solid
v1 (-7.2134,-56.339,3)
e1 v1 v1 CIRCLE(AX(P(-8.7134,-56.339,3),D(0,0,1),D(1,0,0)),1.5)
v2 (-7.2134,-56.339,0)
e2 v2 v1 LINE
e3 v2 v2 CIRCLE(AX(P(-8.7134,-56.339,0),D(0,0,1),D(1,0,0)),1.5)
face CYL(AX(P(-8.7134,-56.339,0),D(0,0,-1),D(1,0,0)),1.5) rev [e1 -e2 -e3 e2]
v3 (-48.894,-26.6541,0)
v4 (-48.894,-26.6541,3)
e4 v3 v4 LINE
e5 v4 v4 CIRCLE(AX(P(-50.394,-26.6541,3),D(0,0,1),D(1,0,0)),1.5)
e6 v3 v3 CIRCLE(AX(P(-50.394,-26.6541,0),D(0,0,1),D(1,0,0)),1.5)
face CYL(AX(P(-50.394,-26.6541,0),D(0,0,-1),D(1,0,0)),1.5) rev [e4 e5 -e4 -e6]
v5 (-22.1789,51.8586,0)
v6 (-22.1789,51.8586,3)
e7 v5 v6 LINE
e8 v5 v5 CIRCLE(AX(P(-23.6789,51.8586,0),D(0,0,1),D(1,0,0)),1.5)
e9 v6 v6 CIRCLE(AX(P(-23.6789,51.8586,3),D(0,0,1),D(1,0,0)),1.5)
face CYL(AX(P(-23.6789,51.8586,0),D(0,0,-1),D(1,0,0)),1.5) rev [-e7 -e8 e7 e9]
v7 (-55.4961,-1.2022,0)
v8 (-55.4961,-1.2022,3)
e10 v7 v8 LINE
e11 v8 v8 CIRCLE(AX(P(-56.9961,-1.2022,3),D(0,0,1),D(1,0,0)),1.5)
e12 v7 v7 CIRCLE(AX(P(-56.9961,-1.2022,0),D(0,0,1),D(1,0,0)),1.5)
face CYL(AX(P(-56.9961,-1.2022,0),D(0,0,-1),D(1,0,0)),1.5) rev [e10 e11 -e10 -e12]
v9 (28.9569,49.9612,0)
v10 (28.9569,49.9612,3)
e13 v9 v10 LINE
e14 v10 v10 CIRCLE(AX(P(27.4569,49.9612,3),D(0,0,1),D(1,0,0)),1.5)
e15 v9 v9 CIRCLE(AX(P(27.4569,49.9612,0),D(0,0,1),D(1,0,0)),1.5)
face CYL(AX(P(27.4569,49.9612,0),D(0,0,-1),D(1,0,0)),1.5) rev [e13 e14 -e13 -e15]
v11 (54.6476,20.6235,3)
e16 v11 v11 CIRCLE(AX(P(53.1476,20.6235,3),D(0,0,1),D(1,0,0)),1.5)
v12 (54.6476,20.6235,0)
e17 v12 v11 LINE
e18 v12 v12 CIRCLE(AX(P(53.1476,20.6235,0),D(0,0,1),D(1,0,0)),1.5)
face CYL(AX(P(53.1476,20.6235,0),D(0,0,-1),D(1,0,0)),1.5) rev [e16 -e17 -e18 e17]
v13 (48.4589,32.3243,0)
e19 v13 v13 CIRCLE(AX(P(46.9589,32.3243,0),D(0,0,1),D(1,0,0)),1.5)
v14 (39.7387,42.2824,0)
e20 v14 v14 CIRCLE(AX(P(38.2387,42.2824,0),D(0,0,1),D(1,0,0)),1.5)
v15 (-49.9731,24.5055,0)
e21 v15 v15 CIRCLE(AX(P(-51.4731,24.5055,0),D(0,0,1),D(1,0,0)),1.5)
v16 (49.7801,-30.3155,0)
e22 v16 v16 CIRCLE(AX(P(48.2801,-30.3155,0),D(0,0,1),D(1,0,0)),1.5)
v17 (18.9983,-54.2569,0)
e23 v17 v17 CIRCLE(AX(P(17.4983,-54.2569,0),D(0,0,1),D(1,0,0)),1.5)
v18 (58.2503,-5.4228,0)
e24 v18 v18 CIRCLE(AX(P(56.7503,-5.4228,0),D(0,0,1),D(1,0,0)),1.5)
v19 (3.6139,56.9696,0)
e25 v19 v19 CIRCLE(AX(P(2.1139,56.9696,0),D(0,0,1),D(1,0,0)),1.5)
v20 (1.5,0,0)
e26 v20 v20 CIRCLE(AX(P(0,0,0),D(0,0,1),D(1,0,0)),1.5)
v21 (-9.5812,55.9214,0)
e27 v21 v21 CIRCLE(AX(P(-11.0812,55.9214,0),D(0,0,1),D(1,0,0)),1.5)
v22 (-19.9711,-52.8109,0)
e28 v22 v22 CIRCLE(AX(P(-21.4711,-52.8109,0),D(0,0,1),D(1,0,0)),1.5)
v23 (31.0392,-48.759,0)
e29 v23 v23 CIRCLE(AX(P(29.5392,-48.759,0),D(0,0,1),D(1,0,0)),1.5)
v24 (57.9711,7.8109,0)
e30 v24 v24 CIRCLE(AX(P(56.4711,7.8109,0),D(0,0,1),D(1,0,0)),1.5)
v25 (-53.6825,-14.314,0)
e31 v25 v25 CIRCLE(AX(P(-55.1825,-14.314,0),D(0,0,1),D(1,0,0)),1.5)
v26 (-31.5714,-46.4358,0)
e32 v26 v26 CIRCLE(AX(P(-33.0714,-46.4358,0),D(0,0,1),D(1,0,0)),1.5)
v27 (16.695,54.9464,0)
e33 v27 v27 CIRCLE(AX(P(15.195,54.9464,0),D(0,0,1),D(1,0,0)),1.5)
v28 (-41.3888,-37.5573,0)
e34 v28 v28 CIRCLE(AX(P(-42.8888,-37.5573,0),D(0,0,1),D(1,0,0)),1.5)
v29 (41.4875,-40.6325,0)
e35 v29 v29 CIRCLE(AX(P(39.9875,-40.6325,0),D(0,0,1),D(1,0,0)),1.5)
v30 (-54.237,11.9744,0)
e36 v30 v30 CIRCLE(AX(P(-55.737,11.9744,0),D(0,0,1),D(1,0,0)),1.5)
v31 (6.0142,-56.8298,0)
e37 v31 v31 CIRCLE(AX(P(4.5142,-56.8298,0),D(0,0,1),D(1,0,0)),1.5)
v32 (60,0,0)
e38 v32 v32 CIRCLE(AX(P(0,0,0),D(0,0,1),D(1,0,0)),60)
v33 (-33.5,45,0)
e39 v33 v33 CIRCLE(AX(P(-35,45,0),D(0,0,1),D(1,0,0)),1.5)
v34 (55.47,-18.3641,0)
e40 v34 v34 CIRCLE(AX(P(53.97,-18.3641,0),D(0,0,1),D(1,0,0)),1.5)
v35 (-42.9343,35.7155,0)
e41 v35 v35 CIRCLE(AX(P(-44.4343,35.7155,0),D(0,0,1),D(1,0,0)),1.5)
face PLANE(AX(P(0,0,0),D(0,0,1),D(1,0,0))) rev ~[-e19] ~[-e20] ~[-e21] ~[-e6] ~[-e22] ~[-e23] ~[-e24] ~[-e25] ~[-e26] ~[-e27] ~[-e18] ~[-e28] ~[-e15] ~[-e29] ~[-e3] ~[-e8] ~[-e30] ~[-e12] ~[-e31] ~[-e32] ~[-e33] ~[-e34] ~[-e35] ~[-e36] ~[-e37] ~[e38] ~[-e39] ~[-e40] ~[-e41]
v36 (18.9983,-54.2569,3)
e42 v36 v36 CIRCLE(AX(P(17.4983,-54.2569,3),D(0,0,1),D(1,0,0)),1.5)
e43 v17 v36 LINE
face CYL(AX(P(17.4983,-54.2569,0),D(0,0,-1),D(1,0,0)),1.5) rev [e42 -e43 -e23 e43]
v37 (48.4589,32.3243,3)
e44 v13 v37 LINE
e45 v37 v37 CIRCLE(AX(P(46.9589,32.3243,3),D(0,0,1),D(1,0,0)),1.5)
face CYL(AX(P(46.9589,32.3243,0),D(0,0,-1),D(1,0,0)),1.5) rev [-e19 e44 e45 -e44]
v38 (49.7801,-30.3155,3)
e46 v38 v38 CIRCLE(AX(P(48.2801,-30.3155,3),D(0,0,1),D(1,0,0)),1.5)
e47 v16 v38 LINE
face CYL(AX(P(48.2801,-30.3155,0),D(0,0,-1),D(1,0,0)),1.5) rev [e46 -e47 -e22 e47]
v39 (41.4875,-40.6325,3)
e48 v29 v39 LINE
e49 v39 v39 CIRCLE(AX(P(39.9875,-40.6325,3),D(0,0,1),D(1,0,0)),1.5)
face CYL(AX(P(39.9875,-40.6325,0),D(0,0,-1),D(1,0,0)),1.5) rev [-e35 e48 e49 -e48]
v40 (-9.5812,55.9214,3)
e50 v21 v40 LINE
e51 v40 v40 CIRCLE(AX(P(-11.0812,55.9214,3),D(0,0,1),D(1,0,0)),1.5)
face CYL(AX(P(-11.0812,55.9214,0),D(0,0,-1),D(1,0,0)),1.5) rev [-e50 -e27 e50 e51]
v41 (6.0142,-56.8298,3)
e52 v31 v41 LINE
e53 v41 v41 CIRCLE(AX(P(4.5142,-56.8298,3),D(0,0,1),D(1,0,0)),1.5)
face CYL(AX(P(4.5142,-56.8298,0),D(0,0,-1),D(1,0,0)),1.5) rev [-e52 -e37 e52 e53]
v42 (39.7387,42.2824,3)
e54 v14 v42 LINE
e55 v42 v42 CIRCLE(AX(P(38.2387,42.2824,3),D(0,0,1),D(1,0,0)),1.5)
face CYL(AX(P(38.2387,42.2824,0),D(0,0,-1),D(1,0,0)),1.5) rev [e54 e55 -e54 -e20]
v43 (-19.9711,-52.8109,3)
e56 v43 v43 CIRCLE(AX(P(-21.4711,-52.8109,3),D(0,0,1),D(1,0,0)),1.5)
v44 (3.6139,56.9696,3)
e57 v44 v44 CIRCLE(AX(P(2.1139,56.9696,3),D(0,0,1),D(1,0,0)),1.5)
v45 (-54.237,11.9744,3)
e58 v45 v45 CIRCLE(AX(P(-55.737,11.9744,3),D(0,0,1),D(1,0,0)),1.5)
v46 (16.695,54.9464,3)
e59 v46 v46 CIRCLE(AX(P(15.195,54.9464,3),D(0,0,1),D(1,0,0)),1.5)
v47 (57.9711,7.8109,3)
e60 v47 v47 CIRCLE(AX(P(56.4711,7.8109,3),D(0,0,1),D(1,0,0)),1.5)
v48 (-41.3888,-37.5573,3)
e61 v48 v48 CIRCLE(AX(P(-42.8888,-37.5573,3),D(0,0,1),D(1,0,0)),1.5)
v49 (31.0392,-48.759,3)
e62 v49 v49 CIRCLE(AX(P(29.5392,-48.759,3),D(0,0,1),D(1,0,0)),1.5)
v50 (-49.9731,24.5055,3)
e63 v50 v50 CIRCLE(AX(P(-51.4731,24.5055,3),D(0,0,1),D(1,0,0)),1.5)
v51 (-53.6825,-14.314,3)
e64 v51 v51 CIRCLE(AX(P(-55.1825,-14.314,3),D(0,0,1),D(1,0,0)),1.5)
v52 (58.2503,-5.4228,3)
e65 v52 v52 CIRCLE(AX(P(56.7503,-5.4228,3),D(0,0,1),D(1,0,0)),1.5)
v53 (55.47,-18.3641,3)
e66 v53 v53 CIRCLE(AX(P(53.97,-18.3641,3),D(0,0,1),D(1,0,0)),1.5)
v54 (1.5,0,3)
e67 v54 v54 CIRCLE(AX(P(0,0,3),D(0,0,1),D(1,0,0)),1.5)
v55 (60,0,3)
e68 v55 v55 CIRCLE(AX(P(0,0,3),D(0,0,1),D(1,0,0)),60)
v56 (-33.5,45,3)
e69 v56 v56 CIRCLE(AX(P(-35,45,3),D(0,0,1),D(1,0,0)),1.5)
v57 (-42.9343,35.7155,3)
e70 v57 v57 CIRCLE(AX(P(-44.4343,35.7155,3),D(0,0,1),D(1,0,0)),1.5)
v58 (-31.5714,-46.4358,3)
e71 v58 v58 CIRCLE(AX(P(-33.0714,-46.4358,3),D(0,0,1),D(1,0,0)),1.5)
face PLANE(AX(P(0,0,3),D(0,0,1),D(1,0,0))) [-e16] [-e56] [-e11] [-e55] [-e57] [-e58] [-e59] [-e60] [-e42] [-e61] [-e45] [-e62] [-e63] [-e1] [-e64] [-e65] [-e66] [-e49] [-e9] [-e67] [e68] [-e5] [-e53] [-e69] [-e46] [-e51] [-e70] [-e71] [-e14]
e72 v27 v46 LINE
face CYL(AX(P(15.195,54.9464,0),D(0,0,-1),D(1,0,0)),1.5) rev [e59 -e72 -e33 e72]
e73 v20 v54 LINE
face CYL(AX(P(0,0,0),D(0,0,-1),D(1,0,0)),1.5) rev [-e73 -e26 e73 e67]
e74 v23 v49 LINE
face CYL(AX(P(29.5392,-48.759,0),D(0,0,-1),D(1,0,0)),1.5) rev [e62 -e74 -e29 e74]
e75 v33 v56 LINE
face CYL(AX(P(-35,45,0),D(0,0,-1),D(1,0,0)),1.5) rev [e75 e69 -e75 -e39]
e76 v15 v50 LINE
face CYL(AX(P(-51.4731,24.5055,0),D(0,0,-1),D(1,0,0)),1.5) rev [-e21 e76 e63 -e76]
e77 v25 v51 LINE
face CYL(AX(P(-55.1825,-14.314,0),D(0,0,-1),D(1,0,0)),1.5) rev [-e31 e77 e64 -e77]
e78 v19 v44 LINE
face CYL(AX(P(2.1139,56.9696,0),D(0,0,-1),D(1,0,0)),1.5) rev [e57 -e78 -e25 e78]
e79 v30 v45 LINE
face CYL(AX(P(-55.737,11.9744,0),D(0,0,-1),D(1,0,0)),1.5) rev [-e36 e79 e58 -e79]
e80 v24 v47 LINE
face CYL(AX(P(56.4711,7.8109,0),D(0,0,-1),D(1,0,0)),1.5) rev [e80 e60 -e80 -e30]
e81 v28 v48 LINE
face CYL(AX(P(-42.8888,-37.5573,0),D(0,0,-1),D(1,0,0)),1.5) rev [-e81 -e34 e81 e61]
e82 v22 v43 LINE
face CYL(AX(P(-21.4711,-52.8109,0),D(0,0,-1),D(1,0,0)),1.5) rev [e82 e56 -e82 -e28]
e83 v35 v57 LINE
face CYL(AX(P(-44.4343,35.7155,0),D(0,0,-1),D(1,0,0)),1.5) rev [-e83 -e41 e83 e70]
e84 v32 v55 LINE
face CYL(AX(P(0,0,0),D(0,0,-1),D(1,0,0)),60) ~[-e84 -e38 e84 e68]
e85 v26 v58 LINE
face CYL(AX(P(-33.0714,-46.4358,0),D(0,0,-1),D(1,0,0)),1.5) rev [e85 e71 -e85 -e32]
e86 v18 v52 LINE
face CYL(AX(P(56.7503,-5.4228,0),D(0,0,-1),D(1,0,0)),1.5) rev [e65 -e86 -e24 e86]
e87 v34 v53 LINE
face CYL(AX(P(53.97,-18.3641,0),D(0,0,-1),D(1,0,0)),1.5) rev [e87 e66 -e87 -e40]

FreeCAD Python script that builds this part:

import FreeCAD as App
import Part
import Sketcher
from FreeCAD import Vector
Q = App.Units.Quantity

doc = App.newDocument("Part")
body = doc.addObject("PartDesign::Body", "Body")

# Sketch on XY plane
sketch1 = body.newObject("Sketcher::SketchObject", "Sketch")
sketch1.AttachmentSupport = (doc.getObject("XY_Plane"), [""])
sketch1.MapMode = "FlatFace"
sketch1.addGeometry([
    Part.Circle(Vector(0, 0, 0), Vector(0, 0, 1), 60),  # 0
    Part.Circle(Vector(-33.1, -46.4, 0), Vector(0, 0, 1), 1.5),  # 1
    Part.Circle(Vector(-42.9, -37.6, 0), Vector(0, 0, 1), 1.5),  # 2
    Part.Circle(Vector(-21.5, -52.8, 0), Vector(0, 0, 1), 1.5),  # 3
    Part.Circle(Vector(-8.7, -56.3, 0), Vector(0, 0, 1), 1.5),  # 4
    Part.Circle(Vector(-50.4, -26.7, 0), Vector(0, 0, 1), 1.5),  # 5
    Part.Circle(Vector(-55.2, -14.3, 0), Vector(0, 0, 1), 1.5),  # 6
    Part.Circle(Vector(-57, -1.2, 0), Vector(0, 0, 1), 1.5),  # 7
    Part.Circle(Vector(4.5, -56.8, 0), Vector(0, 0, 1), 1.5),  # 8
    Part.Circle(Vector(17.5, -54.3, 0), Vector(0, 0, 1), 1.5),  # 9
    Part.Circle(Vector(29.5, -48.8, 0), Vector(0, 0, 1), 1.5),  # 10
    Part.Circle(Vector(40, -40.6, 0), Vector(0, 0, 1), 1.5),  # 11
    Part.Circle(Vector(48.3, -30.3, 0), Vector(0, 0, 1), 1.5),  # 12
    Part.Circle(Vector(54, -18.4, 0), Vector(0, 0, 1), 1.5),  # 13
    Part.Circle(Vector(56.8, -5.4, 0), Vector(0, 0, 1), 1.5),  # 14
    Part.Circle(Vector(-55.7, 12, 0), Vector(0, 0, 1), 1.5),  # 15
    Part.Circle(Vector(-51.5, 24.5, 0), Vector(0, 0, 1), 1.5),  # 16
    Part.Circle(Vector(-44.4, 35.7, 0), Vector(0, 0, 1), 1.5),  # 17
    Part.Circle(Vector(-35, 45, 0), Vector(0, 0, 1), 1.5),  # 18
    Part.Circle(Vector(-23.7, 51.9, 0), Vector(0, 0, 1), 1.5),  # 19
    Part.Circle(Vector(-11.1, 55.9, 0), Vector(0, 0, 1), 1.5),  # 20
    Part.Circle(Vector(0, 0, 0), Vector(0, 0, 1), 1.5),  # 21
    Part.Circle(Vector(56.5, 7.8, 0), Vector(0, 0, 1), 1.5),  # 22
    Part.Circle(Vector(53.1, 20.6, 0), Vector(0, 0, 1), 1.5),  # 23
    Part.Circle(Vector(2.1, 57, 0), Vector(0, 0, 1), 1.5),  # 24
    Part.Circle(Vector(27.5, 50, 0), Vector(0, 0, 1), 1.5),  # 25
    Part.Circle(Vector(15.2, 54.9, 0), Vector(0, 0, 1), 1.5),  # 26
    Part.Circle(Vector(38.2, 42.3, 0), Vector(0, 0, 1), 1.5),  # 27
    Part.Circle(Vector(47, 32.3, 0), Vector(0, 0, 1), 1.5),  # 28
], False)
sketch1.addConstraint([
    Sketcher.Constraint("Coincident", 0, 3, -1, 1),
    Sketcher.Constraint("Coincident", 21, 3, -1, 1),
    Sketcher.Constraint("Equal", 1, 2),
    Sketcher.Constraint("Equal", 2, 3),
    Sketcher.Constraint("Equal", 3, 4),
    Sketcher.Constraint("Equal", 4, 5),
    Sketcher.Constraint("Equal", 5, 6),
    Sketcher.Constraint("Equal", 6, 7),
    Sketcher.Constraint("Equal", 7, 8),
    Sketcher.Constraint("Equal", 8, 9),
    Sketcher.Constraint("Equal", 9, 10),
    Sketcher.Constraint("Equal", 10, 11),
    Sketcher.Constraint("Equal", 11, 12),
    Sketcher.Constraint("Equal", 12, 13),
    Sketcher.Constraint("Equal", 13, 14),
    Sketcher.Constraint("Equal", 14, 15),
    Sketcher.Constraint("Equal", 15, 16),
    Sketcher.Constraint("Equal", 16, 17),
    Sketcher.Constraint("Equal", 17, 18),
    Sketcher.Constraint("Equal", 18, 19),
    Sketcher.Constraint("Equal", 19, 20),
    Sketcher.Constraint("Equal", 20, 21),
    Sketcher.Constraint("Equal", 21, 22),
    Sketcher.Constraint("Equal", 22, 23),
    Sketcher.Constraint("Equal", 23, 24),
    Sketcher.Constraint("Equal", 24, 25),
    Sketcher.Constraint("Equal", 25, 26),
    Sketcher.Constraint("Equal", 26, 27),
    Sketcher.Constraint("Equal", 27, 28),
    Sketcher.Constraint("Diameter", 0, Q("120 mm")),
    Sketcher.Constraint("Diameter", 1, Q("3 mm")),
    Sketcher.Constraint("DistanceX", 18, 3, -1, 1, Q("35 mm")),
    Sketcher.Constraint("DistanceY", -1, 1, 18, 3, Q("45 mm")),
    Sketcher.Constraint("DistanceX", -1, 1, 12, 3, Q("48.28 mm")),
    Sketcher.Constraint("DistanceX", -1, 1, 13, 3, Q("53.97 mm")),
    Sketcher.Constraint("DistanceY", 5, 3, 6, 3, Q("12.34 mm")),
    Sketcher.Constraint("DistanceY", 4, 3, 10, 3, Q("7.58 mm")),
    Sketcher.Constraint("DistanceY", 16, 3, 17, 3, Q("11.21 mm")),
    Sketcher.Constraint("DistanceX", 3, 3, -1, 1, Q("21.471 mm")),
    Sketcher.Constraint("DistanceY", 3, 3, -1, 1, Q("52.811 mm")),
    Sketcher.Constraint("DistanceY", 4, 3, -1, 1, Q("56.339 mm")),
    Sketcher.Constraint("DistanceX", 5, 3, -1, 1, Q("50.394 mm")),
    Sketcher.Constraint("DistanceY", 5, 3, -1, 1, Q("26.654 mm")),
    Sketcher.Constraint("DistanceX", 7, 3, -1, 1, Q("56.996 mm")),
    Sketcher.Constraint("DistanceY", 9, 3, -1, 1, Q("54.257 mm")),
    Sketcher.Constraint("DistanceY", 13, 3, -1, 1, Q("18.364 mm")),
    Sketcher.Constraint("DistanceX", 15, 3, -1, 1, Q("55.737 mm")),
    Sketcher.Constraint("DistanceX", 16, 3, -1, 1, Q("51.473 mm")),
    Sketcher.Constraint("DistanceX", 19, 3, -1, 1, Q("23.679 mm")),
    Sketcher.Constraint("DistanceX", -1, 1, 22, 3, Q("56.471 mm")),
    Sketcher.Constraint("DistanceY", -1, 1, 22, 3, Q("7.811 mm")),
    Sketcher.Constraint("DistanceX", -1, 1, 24, 3, Q("2.114 mm")),
    Sketcher.Constraint("DistanceX", -1, 1, 25, 3, Q("27.457 mm")),
    Sketcher.Constraint("DistanceX", -1, 1, 26, 3, Q("15.195 mm")),
    Sketcher.Constraint("DistanceX", -1, 1, 28, 3, Q("46.959 mm")),
    Sketcher.Constraint("DistanceY", 3, 3, 1, 3, Q("6.375 mm")),
    Sketcher.Constraint("DistanceX", 1, 3, 4, 3, Q("24.358 mm")),
    Sketcher.Constraint("DistanceX", 6, 3, 1, 3, Q("22.111 mm")),
    Sketcher.Constraint("DistanceY", 5, 3, 7, 3, Q("25.452 mm")),
    Sketcher.Constraint("DistanceY", 2, 3, 7, 3, Q("36.355 mm")),
    Sketcher.Constraint("DistanceY", 8, 3, 3, 3, Q("4.019 mm")),
    Sketcher.Constraint("DistanceX", 2, 3, 8, 3, Q("47.403 mm")),
    Sketcher.Constraint("DistanceX", 8, 3, 9, 3, Q("12.984 mm")),
    Sketcher.Constraint("DistanceX", 9, 3, 10, 3, Q("12.041 mm")),
    Sketcher.Constraint("DistanceX", 4, 3, 11, 3, Q("48.701 mm")),
    Sketcher.Constraint("DistanceY", 11, 3, 12, 3, Q("10.317 mm")),
    Sketcher.Constraint("DistanceX", 10, 3, 12, 3, Q("18.741 mm")),
    Sketcher.Constraint("DistanceX", 10, 3, 14, 3, Q("27.211 mm")),
    Sketcher.Constraint("DistanceY", 15, 3, 16, 3, Q("12.531 mm")),
    Sketcher.Constraint("DistanceY", 17, 3, 19, 3, Q("16.143 mm")),
    Sketcher.Constraint("DistanceX", 17, 3, 20, 3, Q("33.353 mm")),
    Sketcher.Constraint("DistanceY", 17, 3, 20, 3, Q("20.206 mm")),
    Sketcher.Constraint("DistanceX", 16, 3, 20, 3, Q("40.392 mm")),
    Sketcher.Constraint("DistanceY", 12, 3, 23, 3, Q("50.939 mm")),
    Sketcher.Constraint("DistanceY", 19, 3, 24, 3, Q("5.111 mm")),
    Sketcher.Constraint("DistanceY", 26, 3, 20, 3, Q("0.975 mm")),
    Sketcher.Constraint("DistanceY", 23, 3, 26, 3, Q("34.323 mm")),
    Sketcher.Constraint("DistanceX", 27, 3, 23, 3, Q("14.909 mm")),
    Sketcher.Constraint("DistanceY", 23, 3, 27, 3, Q("21.659 mm")),
    Sketcher.Constraint("DistanceY", 28, 3, 27, 3, Q("9.958 mm")),
    Sketcher.Constraint("DistanceY", 28, 3, 25, 3, Q("17.637 mm")),
    Sketcher.Constraint("DistanceX", 1, 3, -1, 1, Q("33.0714 mm")),
    Sketcher.Constraint("DistanceY", 11, 3, -1, 1, Q("40.6325 mm")),
    Sketcher.Constraint("DistanceY", 14, 3, -1, 1, Q("5.4228 mm")),
    Sketcher.Constraint("DistanceX", -1, 1, 23, 3, Q("53.1476 mm")),
])
pad1 = body.newObject("PartDesign::Pad", "Pad")
pad1.Profile = sketch1
pad1.Length = 3

doc.recompute()
